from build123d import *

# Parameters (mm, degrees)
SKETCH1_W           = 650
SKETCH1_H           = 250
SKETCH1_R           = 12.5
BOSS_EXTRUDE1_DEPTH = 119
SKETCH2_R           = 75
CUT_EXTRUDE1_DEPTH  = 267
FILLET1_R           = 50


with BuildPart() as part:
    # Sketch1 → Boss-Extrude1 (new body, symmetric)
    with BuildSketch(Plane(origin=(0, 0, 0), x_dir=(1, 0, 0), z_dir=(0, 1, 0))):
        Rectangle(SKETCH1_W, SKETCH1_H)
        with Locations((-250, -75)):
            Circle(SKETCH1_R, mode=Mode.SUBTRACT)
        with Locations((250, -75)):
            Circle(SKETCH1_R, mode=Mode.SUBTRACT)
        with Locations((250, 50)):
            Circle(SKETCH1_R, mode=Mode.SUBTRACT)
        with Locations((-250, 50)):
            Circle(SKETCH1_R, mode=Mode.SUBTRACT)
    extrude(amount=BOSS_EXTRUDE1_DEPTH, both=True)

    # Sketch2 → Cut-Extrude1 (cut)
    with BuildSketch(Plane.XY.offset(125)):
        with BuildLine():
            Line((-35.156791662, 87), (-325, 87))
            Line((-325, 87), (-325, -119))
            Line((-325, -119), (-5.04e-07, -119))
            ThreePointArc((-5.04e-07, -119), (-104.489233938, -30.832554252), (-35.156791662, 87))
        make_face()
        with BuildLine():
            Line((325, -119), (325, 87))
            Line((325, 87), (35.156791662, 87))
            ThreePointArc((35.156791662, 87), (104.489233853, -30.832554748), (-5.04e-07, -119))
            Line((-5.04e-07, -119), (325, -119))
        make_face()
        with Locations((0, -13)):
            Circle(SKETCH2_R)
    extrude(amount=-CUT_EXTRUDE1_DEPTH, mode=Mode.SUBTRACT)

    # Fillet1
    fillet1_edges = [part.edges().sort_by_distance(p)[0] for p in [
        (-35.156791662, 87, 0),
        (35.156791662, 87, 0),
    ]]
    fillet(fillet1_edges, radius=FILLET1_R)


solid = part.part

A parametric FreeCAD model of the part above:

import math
import FreeCAD as App
import Part
import Sketcher
Q = App.Units.Quantity


def edges_at(feature, points):
    """Names of the edges that pass closest to the given points."""
    edges = feature.Shape.Edges
    near = lambda p: min(range(len(edges)), key=lambda i: edges[i].distToShape(Part.Vertex(*p))[0])
    return sorted({f"Edge{near(p) + 1}" for p in points})


def add_polygon(sketch, points):
    """Adds a closed chain of lines whose ends are joined by coincident constraints."""
    first, n = sketch.GeometryCount, len(points)
    for a, b in zip(points, points[1:] + points[:1]):
        sketch.addGeometry(Part.LineSegment(App.Vector(*a, 0), App.Vector(*b, 0)), False)
    for i in range(n):
        sketch.addConstraint(Sketcher.Constraint("Coincident", first + i, 2, first + (i + 1) % n, 1))

doc = App.newDocument("Part")
body = doc.addObject("PartDesign::Body", "Body")

sketch1 = doc.addObject("Sketcher::SketchObject", "Sketch")
body.addObject(sketch1)
sketch1.AttachmentSupport = (doc.XZ_Plane, [""])
sketch1.MapMode = "FlatFace"
add_polygon(sketch1, [(-325, -125), (-325, 125), (325, 125), (325, -125)])
sketch1.addGeometry(Part.Circle(App.Vector(-250, 75, 0), App.Vector(0, 0, 1), 12), False)
sketch1.addGeometry(Part.Circle(App.Vector(250, 75, 0), App.Vector(0, 0, 1), 12), False)
sketch1.addGeometry(Part.Circle(App.Vector(-250, -50, 0), App.Vector(0, 0, 1), 12), False)
sketch1.addGeometry(Part.Circle(App.Vector(250, -50, 0), App.Vector(0, 0, 1), 12), False)
sketch1.addConstraint([
    Sketcher.Constraint("Vertical", 0),
    Sketcher.Constraint("Horizontal", 1),
    Sketcher.Constraint("Vertical", 2),
    Sketcher.Constraint("Horizontal", 3),
    Sketcher.Constraint("Equal", 4, 5),
    Sketcher.Constraint("Equal", 5, 6),
    Sketcher.Constraint("Equal", 6, 7),
    Sketcher.Constraint("Symmetric", 0, 2, 2, 2, -1, 1),
    Sketcher.Constraint("Symmetric", 4, 3, 5, 3, -2),
    Sketcher.Constraint("Symmetric", 6, 3, 7, 3, -2),
    Sketcher.Constraint("Vertical", 4, 3, 6, 3),
    Sketcher.Constraint("Diameter", 4, Q("25 mm")),
    Sketcher.Constraint("DistanceX", 1, 1, 1, 2, Q("650 mm")),
    Sketcher.Constraint("DistanceY", 0, 1, 0, 2, Q("250 mm")),
    Sketcher.Constraint("DistanceX", 4, 3, -1, 1, Q("250 mm")),
    Sketcher.Constraint("DistanceY", -1, 1, 4, 3, Q("75 mm")),
    Sketcher.Constraint("DistanceY", 6, 3, -1, 1, Q("50 mm")),
])
pad1 = doc.addObject("PartDesign::Pad", "Pad")
body.addObject(pad1)
pad1.Profile = sketch1
pad1.Length = 238
pad1.Midplane = True

sketch2 = doc.addObject("Sketcher::SketchObject", "Sketch001")
body.addObject(sketch2)
sketch2.AttachmentSupport = (doc.XY_Plane, [""])
sketch2.MapMode = "FlatFace"
sketch2.AttachmentOffset = App.Placement(App.Vector(0, 0, 125), App.Rotation())
sketch2.addGeometry([
    Part.LineSegment(App.Vector(-35, 87, 0), App.Vector(-325, 87, 0)),
    Part.LineSegment(App.Vector(-325, 87, 0), App.Vector(-325, -119, 0)),
    Part.LineSegment(App.Vector(-325, -119, 0), App.Vector(0, -119, 0)),
    Part.ArcOfCircle(Part.Circle(App.Vector(0, -13, 0), App.Vector(0, 0, 1), 106), math.radians(109), math.radians(270)),
    Part.LineSegment(App.Vector(325, -119, 0), App.Vector(325, 87, 0)),
    Part.LineSegment(App.Vector(325, 87, 0), App.Vector(35, 87, 0)),
    Part.ArcOfCircle(Part.Circle(App.Vector(0, -13, 0), App.Vector(0, 0, 1), 106), math.radians(-90), math.radians(71)),
    Part.LineSegment(App.Vector(0, -119, 0), App.Vector(325, -119, 0)),
    Part.Circle(App.Vector(0, -13, 0), App.Vector(0, 0, 1), 75),
], False)
sketch2.addConstraint([
    Sketcher.Constraint("Coincident", 0, 2, 1, 1),
    Sketcher.Constraint("Coincident", 1, 2, 2, 1),
    Sketcher.Constraint("Tangent", 2, 2, 3, 2),
    Sketcher.Constraint("Coincident", 3, 1, 0, 1),
    Sketcher.Constraint("Coincident", 4, 2, 5, 1),
    Sketcher.Constraint("Coincident", 5, 2, 6, 2),
    Sketcher.Constraint("Tangent", 6, 1, 7, 1),
    Sketcher.Constraint("Coincident", 7, 2, 4, 1),
    Sketcher.Constraint("Horizontal", 0),
    Sketcher.Constraint("Vertical", 1),
    Sketcher.Constraint("Horizontal", 2),
    Sketcher.Constraint("Vertical", 4),
    Sketcher.Constraint("Horizontal", 5),
    Sketcher.Constraint("Horizontal", 7),
    Sketcher.Constraint("Coincident", 6, 3, 3, 3),
    Sketcher.Constraint("Coincident", 8, 3, 3, 3),
    Sketcher.Constraint("Equal", 3, 6),
    Sketcher.Constraint("Symmetric", 0, 2, 4, 2, -2),
    Sketcher.Constraint("PointOnObject", 3, 3, -2),
    Sketcher.Constraint("Diameter", 8, Q("150 mm")),
    Sketcher.Constraint("Radius", 3, Q("106 mm")),
    Sketcher.Constraint("DistanceX", 2, 1, 2, 2, Q("324.999999 mm")),
    Sketcher.Constraint("DistanceY", 1, 2, 1, 1, Q("206 mm")),
    Sketcher.Constraint("DistanceY", 3, 3, -1, 1, Q("13 mm")),
])
pocket1 = doc.addObject("PartDesign::Pocket", "Pocket")
body.addObject(pocket1)
pocket1.Profile = sketch2
pocket1.Length = 267
doc.recompute()

fillet = doc.addObject("PartDesign::Fillet", "Fillet")
body.addObject(fillet)
fillet.Base = (pocket1, edges_at(pocket1, [(-35.157, 87, 0), (35.157, 87, 0)]))
fillet.Radius = 50

doc.recompute()
